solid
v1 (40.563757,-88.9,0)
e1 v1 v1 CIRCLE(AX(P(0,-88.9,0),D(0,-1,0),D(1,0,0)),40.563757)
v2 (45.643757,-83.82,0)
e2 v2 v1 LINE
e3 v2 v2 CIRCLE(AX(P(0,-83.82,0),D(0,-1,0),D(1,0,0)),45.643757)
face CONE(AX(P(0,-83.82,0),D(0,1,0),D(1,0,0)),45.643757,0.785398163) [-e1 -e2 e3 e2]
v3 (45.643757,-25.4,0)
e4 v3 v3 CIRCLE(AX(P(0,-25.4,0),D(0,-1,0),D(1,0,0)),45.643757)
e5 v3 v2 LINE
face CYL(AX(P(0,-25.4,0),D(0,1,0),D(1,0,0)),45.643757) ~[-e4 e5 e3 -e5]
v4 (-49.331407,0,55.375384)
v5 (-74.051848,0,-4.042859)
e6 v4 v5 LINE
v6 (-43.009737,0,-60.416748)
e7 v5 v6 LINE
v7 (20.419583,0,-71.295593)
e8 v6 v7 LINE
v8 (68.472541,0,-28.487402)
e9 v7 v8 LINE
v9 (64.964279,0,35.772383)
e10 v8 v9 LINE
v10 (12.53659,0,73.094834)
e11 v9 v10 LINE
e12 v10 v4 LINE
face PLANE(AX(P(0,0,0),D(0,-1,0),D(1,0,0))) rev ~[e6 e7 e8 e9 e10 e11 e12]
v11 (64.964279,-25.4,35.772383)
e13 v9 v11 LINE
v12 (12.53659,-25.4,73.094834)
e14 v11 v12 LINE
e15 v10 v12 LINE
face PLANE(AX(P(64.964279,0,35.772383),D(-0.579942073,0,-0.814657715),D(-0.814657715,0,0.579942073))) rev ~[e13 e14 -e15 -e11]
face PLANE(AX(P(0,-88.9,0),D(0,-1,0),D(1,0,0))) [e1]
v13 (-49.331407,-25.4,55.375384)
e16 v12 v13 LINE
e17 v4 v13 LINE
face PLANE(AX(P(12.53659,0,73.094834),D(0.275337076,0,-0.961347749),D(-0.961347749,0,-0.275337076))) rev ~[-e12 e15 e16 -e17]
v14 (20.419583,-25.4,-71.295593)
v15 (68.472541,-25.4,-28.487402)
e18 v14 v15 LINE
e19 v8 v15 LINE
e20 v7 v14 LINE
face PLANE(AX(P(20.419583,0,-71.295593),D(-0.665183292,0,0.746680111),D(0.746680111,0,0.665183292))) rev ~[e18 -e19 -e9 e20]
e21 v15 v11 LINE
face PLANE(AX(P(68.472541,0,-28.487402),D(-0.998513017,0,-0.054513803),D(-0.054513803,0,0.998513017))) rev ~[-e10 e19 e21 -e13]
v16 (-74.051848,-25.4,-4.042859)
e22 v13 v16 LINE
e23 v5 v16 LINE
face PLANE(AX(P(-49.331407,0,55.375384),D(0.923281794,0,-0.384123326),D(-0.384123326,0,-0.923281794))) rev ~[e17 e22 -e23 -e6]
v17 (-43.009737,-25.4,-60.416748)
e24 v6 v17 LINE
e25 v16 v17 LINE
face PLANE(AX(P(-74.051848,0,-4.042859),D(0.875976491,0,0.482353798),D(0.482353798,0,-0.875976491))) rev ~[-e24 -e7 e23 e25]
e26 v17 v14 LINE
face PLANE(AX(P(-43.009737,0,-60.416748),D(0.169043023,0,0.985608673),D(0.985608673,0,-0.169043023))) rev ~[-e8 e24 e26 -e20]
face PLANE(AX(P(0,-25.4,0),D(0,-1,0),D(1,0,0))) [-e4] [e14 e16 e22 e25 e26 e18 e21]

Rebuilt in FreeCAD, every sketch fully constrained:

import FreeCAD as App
import Part
import Sketcher

V = App.Vector
Q = App.Units.Quantity


def edges_at(feature, points):
    """Names of the edges that pass closest to the given points."""
    edges = feature.Shape.Edges
    near = lambda p: min(range(len(edges)), key=lambda i: edges[i].distToShape(Part.Vertex(*p))[0])
    return sorted({f"Edge{near(p) + 1}" for p in points})

doc = App.newDocument("Part")
body = doc.addObject("PartDesign::Body", "Body")

sketch1 = doc.addObject("Sketcher::SketchObject", "Sketch")
body.addObject(sketch1)
sketch1.AttachmentSupport = (doc.XZ_Plane, [""])
sketch1.MapMode = "FlatFace"
sketch1.addGeometry(Part.LineSegment(V(-74, -4, 0), V(-43, -60, 0)), False)
sketch1.addGeometry(Part.LineSegment(V(-43, -60, 0), V(20, -71, 0)), False)
sketch1.addGeometry(Part.LineSegment(V(20, -71, 0), V(68, -28, 0)), False)
sketch1.addGeometry(Part.LineSegment(V(68, -28, 0), V(65, 36, 0)), False)
sketch1.addGeometry(Part.LineSegment(V(65, 36, 0), V(13, 73, 0)), False)
sketch1.addGeometry(Part.LineSegment(V(13, 73, 0), V(-49, 55, 0)), False)
sketch1.addGeometry(Part.LineSegment(V(-49, 55, 0), V(-74, -4, 0)), False)
sketch1.addConstraint(Sketcher.Constraint("Coincident", 0, 2, 1, 1))
sketch1.addConstraint(Sketcher.Constraint("Coincident", 1, 2, 2, 1))
sketch1.addConstraint(Sketcher.Constraint("Coincident", 2, 2, 3, 1))
sketch1.addConstraint(Sketcher.Constraint("Coincident", 3, 2, 4, 1))
sketch1.addConstraint(Sketcher.Constraint("Coincident", 4, 2, 5, 1))
sketch1.addConstraint(Sketcher.Constraint("Coincident", 5, 2, 6, 1))
sketch1.addConstraint(Sketcher.Constraint("Coincident", 6, 2, 0, 1))
sketch1.addConstraint(Sketcher.Constraint("Equal", 0, 1))
sketch1.addConstraint(Sketcher.Constraint("Equal", 1, 2))
sketch1.addConstraint(Sketcher.Constraint("Equal", 2, 3))
sketch1.addConstraint(Sketcher.Constraint("Equal", 3, 4))
sketch1.addConstraint(Sketcher.Constraint("Equal", 4, 5))
sketch1.addConstraint(Sketcher.Constraint("Equal", 5, 6))
sketch1.addConstraint(Sketcher.Constraint("DistanceY", 2, 2, -1, 1, Q("28.487402 mm")))
sketch1.addConstraint(Sketcher.Constraint("DistanceY", 3, 2, 5, 2, Q("19.603001 mm")))
sketch1.addConstraint(Sketcher.Constraint("Distance", 0, Q("64.355482 mm")))
sketch1.addConstraint(Sketcher.Constraint("DistanceX", -1, 1, 2, 2, Q("68.472541 mm")))
sketch1.addConstraint(Sketcher.Constraint("DistanceX", -1, 1, 3, 2, Q("64.964279 mm")))
sketch1.addConstraint(Sketcher.Constraint("DistanceX", -1, 1, 4, 2, Q("12.53659 mm")))
sketch1.addConstraint(Sketcher.Constraint("DistanceX", 6, 2, -1, 1, Q("74.051848 mm")))
sketch1.addConstraint(Sketcher.Constraint("DistanceX", 0, 2, 1, 2, Q("63.42932 mm")))
pad1 = doc.addObject("PartDesign::Pad", "Pad")
body.addObject(pad1)
pad1.Profile = sketch1
pad1.Length = Q("1 in")

sketch2 = doc.addObject("Sketcher::SketchObject", "Sketch001")
body.addObject(sketch2)
sketch2.AttachmentSupport = (doc.XZ_Plane, [""])
sketch2.MapMode = "FlatFace"
sketch2.AttachmentOffset = App.Placement(V(0, 0, 1 * 25.4), App.Rotation())
sketch2.addGeometry(Part.Circle(V(0, 0, 0), V(0, 0, 1), 46), False)
sketch2.addConstraint(Sketcher.Constraint("Coincident", 0, 3, -1, 1))
sketch2.addConstraint(Sketcher.Constraint("Diameter", 0, Q("91.287514 mm")))
pad2 = doc.addObject("PartDesign::Pad", "Pad001")
body.addObject(pad2)
pad2.Profile = sketch2
pad2.Length = Q("2.5 in")
doc.recompute()

chamfer = doc.addObject("PartDesign::Chamfer", "Chamfer")
body.addObject(chamfer)
chamfer.Base = (pad2, edges_at(pad2, [(-45.644, -88.9, 0)]))
chamfer.Size = Q("0.2 in")

doc.recompute()
